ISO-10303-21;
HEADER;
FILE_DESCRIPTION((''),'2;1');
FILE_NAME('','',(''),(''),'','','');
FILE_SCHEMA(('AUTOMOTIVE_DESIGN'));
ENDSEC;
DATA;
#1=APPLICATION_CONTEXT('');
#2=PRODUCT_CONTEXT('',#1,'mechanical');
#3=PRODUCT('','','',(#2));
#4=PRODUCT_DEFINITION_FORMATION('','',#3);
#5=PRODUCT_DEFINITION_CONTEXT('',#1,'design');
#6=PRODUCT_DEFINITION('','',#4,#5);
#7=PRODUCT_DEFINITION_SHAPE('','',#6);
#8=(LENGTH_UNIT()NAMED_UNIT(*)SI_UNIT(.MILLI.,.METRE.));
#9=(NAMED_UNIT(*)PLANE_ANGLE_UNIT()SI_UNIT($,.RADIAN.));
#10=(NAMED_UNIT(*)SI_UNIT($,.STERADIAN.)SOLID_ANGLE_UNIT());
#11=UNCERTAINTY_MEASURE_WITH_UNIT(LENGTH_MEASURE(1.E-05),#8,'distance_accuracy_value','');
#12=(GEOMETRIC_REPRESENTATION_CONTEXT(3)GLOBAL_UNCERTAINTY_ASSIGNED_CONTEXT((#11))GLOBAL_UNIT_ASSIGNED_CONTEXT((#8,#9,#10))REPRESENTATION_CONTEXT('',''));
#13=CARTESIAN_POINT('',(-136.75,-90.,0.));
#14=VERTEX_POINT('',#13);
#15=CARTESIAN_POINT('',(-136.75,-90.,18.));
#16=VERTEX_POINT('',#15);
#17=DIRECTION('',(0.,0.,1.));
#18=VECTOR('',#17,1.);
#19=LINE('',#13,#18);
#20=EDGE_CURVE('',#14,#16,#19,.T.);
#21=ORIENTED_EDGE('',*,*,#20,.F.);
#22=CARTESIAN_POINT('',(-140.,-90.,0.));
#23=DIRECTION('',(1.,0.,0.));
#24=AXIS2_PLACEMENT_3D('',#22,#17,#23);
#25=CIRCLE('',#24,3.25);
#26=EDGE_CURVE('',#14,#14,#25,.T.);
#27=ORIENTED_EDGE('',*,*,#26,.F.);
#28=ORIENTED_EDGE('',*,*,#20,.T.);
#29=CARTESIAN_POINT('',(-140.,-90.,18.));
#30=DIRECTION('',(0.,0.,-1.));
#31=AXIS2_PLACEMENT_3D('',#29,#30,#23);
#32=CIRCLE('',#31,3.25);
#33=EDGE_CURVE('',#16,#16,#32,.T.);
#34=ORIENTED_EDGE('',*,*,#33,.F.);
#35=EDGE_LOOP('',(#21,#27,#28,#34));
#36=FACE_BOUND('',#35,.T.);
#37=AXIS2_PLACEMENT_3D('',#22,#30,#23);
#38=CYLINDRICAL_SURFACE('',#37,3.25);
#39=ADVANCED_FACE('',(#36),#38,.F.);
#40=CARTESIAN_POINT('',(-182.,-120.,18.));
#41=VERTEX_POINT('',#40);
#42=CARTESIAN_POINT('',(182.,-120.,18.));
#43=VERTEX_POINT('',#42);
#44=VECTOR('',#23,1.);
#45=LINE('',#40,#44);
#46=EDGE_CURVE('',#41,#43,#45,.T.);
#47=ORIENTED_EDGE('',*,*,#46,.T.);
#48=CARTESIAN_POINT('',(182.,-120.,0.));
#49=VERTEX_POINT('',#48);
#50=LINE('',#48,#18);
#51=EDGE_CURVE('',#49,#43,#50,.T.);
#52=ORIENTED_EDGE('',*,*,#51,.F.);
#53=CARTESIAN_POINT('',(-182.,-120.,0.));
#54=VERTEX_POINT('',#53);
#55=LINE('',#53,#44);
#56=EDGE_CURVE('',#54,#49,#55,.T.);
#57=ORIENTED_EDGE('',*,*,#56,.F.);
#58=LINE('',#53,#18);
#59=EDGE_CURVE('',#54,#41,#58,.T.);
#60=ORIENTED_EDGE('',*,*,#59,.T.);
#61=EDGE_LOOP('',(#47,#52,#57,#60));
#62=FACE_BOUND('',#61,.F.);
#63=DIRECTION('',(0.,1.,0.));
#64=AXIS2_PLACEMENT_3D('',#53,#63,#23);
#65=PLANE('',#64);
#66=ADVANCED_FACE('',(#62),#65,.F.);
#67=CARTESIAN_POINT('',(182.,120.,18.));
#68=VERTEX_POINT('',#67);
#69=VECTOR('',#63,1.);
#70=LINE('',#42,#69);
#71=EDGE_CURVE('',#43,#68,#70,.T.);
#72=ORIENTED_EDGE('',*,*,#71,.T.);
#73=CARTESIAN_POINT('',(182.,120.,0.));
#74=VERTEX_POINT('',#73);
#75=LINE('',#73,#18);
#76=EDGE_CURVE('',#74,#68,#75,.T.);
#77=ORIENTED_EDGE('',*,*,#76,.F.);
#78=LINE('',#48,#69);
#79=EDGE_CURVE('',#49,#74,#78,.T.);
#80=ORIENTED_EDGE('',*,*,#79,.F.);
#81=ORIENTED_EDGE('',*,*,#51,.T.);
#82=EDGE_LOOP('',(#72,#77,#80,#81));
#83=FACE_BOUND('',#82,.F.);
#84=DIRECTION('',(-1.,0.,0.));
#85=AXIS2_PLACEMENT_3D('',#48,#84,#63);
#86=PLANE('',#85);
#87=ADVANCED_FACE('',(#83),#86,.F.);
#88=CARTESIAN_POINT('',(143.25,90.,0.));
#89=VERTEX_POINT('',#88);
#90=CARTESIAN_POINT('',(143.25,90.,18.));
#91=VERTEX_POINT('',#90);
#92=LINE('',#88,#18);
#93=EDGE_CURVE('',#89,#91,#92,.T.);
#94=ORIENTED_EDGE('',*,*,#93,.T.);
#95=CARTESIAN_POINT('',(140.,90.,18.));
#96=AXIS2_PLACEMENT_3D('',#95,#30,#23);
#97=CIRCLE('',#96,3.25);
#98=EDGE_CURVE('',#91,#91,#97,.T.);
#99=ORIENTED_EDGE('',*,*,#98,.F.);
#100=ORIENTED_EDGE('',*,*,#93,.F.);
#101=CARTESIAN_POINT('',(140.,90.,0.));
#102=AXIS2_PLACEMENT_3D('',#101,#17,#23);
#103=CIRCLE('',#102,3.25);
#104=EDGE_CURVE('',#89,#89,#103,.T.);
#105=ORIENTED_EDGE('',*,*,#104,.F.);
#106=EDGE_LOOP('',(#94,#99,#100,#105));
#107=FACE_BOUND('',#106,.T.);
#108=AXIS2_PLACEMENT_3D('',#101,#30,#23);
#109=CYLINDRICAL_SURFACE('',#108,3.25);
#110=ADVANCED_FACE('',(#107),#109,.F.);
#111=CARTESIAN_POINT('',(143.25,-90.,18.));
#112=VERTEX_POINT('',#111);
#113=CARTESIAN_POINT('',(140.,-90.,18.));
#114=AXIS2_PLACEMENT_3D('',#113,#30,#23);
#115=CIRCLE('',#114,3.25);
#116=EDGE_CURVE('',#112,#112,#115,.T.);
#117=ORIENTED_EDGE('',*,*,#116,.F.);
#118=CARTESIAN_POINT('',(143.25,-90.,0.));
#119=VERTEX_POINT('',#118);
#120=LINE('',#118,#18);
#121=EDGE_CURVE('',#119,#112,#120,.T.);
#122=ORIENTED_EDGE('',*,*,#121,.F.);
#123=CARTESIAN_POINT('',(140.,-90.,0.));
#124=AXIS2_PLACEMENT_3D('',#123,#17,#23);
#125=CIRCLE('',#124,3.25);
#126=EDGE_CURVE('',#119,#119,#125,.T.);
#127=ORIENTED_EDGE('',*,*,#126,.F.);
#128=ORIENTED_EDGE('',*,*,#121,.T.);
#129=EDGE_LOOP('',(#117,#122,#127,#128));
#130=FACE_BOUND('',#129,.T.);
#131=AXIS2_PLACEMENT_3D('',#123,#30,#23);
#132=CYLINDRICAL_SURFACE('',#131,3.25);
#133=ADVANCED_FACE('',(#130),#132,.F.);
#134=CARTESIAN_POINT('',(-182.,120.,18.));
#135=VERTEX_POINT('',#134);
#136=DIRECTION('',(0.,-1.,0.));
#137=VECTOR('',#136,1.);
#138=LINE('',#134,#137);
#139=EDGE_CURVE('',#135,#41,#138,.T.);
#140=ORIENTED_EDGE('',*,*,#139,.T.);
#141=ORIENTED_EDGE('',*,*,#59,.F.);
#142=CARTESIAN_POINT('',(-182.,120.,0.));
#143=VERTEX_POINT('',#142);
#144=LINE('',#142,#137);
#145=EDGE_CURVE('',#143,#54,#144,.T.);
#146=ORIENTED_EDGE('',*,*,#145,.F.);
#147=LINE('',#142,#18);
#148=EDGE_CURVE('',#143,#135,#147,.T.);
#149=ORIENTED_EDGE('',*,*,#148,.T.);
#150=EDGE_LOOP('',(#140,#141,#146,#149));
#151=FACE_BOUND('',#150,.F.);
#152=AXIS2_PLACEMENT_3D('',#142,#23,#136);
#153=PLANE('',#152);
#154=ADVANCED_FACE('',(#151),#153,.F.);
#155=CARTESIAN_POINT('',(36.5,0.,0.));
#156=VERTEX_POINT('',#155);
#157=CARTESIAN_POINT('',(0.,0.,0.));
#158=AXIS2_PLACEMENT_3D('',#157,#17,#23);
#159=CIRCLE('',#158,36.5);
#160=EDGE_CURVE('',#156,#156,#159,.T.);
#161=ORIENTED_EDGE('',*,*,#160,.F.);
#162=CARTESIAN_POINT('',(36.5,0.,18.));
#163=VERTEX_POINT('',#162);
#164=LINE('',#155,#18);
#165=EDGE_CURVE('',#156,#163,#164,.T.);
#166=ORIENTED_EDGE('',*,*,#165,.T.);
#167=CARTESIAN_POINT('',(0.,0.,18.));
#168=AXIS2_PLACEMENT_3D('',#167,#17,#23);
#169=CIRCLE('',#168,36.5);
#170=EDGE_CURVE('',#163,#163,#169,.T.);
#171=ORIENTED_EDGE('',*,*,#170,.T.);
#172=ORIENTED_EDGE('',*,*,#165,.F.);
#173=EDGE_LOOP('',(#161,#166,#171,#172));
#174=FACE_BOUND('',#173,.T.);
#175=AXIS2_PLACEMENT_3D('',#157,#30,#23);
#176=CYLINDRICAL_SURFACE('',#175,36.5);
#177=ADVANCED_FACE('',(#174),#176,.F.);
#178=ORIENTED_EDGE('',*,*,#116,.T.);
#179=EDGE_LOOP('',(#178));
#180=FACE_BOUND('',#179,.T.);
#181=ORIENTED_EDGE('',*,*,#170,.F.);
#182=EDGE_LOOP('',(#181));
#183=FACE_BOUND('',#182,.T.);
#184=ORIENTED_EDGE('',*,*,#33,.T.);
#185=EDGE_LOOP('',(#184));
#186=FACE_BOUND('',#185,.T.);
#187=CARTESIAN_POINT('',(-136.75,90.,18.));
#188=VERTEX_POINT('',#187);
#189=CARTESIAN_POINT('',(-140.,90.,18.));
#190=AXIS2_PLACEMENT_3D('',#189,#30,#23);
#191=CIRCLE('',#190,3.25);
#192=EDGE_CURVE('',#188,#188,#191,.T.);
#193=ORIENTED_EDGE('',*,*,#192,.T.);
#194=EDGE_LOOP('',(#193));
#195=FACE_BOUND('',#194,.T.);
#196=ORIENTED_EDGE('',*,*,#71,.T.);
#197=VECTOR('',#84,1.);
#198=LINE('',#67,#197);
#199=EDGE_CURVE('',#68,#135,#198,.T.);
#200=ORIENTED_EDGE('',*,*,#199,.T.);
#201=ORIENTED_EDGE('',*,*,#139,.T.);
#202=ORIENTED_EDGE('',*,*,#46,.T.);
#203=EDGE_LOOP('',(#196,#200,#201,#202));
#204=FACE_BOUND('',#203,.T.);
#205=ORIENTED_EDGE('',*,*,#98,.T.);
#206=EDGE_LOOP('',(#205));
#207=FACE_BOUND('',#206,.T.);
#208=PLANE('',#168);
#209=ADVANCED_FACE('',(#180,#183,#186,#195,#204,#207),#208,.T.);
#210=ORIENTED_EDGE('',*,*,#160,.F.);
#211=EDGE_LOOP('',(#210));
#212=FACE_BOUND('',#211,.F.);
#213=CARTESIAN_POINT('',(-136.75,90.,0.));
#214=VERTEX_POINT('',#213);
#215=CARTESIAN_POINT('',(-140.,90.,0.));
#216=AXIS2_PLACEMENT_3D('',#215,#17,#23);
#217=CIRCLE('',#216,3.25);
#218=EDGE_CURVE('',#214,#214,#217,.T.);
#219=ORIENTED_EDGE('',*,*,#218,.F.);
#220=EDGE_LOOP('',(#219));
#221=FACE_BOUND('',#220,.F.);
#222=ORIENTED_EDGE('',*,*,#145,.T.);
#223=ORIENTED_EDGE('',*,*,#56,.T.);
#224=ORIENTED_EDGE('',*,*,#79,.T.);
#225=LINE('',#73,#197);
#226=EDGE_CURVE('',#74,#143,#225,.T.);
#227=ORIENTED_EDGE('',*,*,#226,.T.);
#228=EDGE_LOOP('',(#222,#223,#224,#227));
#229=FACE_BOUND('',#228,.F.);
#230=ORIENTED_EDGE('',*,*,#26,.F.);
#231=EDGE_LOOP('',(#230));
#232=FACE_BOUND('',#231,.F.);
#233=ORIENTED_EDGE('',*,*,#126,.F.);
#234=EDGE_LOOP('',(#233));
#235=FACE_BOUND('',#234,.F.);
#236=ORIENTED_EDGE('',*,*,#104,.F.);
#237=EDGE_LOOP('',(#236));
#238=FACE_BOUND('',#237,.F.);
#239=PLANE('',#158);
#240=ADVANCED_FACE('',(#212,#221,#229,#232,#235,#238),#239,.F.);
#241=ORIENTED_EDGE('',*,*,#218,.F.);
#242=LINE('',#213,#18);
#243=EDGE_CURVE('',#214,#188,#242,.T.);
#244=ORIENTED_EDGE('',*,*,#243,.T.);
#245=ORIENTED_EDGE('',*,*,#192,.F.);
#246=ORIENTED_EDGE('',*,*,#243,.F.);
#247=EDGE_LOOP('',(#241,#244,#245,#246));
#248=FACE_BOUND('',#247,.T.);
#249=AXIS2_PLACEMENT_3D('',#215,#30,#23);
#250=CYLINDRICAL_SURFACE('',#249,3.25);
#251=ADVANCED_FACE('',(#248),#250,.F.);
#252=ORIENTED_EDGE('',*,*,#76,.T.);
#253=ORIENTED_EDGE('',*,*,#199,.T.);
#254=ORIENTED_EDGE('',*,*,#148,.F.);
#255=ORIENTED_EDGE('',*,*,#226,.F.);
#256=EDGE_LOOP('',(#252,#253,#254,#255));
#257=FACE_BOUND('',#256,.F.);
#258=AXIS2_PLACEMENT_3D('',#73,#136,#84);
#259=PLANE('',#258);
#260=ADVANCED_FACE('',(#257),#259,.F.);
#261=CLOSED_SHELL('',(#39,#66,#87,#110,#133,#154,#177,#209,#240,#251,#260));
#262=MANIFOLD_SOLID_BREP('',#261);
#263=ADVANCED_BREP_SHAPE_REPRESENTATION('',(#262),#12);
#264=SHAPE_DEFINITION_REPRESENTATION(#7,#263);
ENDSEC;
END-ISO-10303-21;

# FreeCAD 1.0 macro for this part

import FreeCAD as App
import Part
import Sketcher
Q = App.Units.Quantity


def add_polygon(sketch, points):
    """Adds a closed chain of lines whose ends are joined by coincident constraints."""
    first, n = sketch.GeometryCount, len(points)
    for a, b in zip(points, points[1:] + points[:1]):
        sketch.addGeometry(Part.LineSegment(App.Vector(*a, 0), App.Vector(*b, 0)), False)
    for i in range(n):
        sketch.addConstraint(Sketcher.Constraint("Coincident", first + i, 2, first + (i + 1) % n, 1))

doc = App.newDocument("Part")
body = doc.addObject("PartDesign::Body", "Body")

sketch1 = body.newObject("Sketcher::SketchObject", "Sketch")
sketch1.AttachmentSupport = (doc.getObject("XY_Plane"), [""])
sketch1.MapMode = "FlatFace"
add_polygon(sketch1, [(-182, 120), (-182, -120), (182, -120), (182, 120)])
sketch1.addGeometry(Part.Circle(App.Vector(0, 0, 0), App.Vector(0, 0, 1), 36.5), False)
sketch1.addConstraint(Sketcher.Constraint("Vertical", 0))
sketch1.addConstraint(Sketcher.Constraint("Horizontal", 1))
sketch1.addConstraint(Sketcher.Constraint("Vertical", 2))
sketch1.addConstraint(Sketcher.Constraint("Horizontal", 3))
sketch1.addConstraint(Sketcher.Constraint("Coincident", 4, 3, -1, 1))
sketch1.addConstraint(Sketcher.Constraint("Symmetric", 0, 2, 2, 2, -1, 1))
sketch1.addConstraint(Sketcher.Constraint("Diameter", 4, Q("73 mm")))
sketch1.addConstraint(Sketcher.Constraint("DistanceX", 1, 1, 1, 2, Q("364 mm")))
sketch1.addConstraint(Sketcher.Constraint("DistanceY", 0, 2, 0, 1, Q("240 mm")))
pad1 = body.newObject("PartDesign::Pad", "Pad")
pad1.Profile = sketch1
pad1.Length = 18

sketch2 = body.newObject("Sketcher::SketchObject", "Sketch001")
sketch2.AttachmentSupport = (doc.getObject("XY_Plane"), [""])
sketch2.MapMode = "FlatFace"
sketch2.addGeometry(Part.Circle(App.Vector(-140, -90, 0), App.Vector(0, 0, 1), 3.25), False)
sketch2.addGeometry(Part.Circle(App.Vector(140, -90, 0), App.Vector(0, 0, 1), 3.25), False)
sketch2.addGeometry(Part.Circle(App.Vector(-140, 90, 0), App.Vector(0, 0, 1), 3.25), False)
sketch2.addGeometry(Part.Circle(App.Vector(140, 90, 0), App.Vector(0, 0, 1), 3.25), False)
sketch2.addConstraint(Sketcher.Constraint("Equal", 0, 1))
sketch2.addConstraint(Sketcher.Constraint("Equal", 1, 2))
sketch2.addConstraint(Sketcher.Constraint("Equal", 2, 3))
sketch2.addConstraint(Sketcher.Constraint("Symmetric", 1, 3, 2, 3, -1, 1))
sketch2.addConstraint(Sketcher.Constraint("Symmetric", 0, 3, 3, 3, -1, 1))
sketch2.addConstraint(Sketcher.Constraint("Symmetric", 0, 3, 1, 3, -2))
sketch2.addConstraint(Sketcher.Constraint("Diameter", 0, Q("6.5 mm")))
sketch2.addConstraint(Sketcher.Constraint("DistanceX", 0, 3, 1, 3, Q("280 mm")))
sketch2.addConstraint(Sketcher.Constraint("DistanceY", 0, 3, 2, 3, Q("180 mm")))
pocket1 = body.newObject("PartDesign::Pocket", "Pocket")
pocket1.Profile = sketch2
pocket1.Type = "ThroughAll"
pocket1.Reversed = True

doc.recompute()
